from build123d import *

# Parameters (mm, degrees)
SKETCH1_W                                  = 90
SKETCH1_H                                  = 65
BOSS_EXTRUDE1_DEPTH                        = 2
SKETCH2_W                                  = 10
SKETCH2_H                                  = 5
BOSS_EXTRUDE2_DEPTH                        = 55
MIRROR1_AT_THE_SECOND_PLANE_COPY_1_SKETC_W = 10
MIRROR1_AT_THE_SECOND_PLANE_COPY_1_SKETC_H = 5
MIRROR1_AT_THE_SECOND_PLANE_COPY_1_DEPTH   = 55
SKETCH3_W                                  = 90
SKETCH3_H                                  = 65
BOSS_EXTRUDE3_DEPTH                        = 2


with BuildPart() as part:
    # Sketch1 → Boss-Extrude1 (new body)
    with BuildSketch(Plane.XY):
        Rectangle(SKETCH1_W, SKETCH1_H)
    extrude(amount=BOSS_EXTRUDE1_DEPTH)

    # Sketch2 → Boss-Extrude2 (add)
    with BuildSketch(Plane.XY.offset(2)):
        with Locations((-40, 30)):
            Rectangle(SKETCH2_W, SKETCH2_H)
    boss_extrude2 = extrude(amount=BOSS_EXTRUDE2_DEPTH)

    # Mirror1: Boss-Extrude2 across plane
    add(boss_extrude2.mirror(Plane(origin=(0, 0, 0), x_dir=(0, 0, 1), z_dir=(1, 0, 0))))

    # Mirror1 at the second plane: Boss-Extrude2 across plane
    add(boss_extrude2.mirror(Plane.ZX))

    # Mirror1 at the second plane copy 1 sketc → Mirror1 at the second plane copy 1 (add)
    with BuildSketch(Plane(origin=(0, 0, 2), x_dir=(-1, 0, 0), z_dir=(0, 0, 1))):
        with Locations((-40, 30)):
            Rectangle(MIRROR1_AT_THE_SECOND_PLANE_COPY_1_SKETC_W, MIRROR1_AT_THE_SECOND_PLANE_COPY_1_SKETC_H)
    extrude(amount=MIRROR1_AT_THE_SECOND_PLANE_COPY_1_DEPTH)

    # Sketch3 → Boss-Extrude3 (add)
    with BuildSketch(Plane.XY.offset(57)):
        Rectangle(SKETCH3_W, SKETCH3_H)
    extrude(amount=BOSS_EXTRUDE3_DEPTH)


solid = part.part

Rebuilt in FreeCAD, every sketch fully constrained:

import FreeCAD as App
import Part
import Sketcher
from FreeCAD import Vector

doc = App.newDocument("Part")
body = doc.addObject("PartDesign::Body", "Body")

sketch1 = body.newObject("Sketcher::SketchObject", "Sketch")
sketch1.AttachmentSupport = (doc.getObject("XY_Plane"), [""])
sketch1.MapMode = "FlatFace"
sketch1.addGeometry([
    Part.LineSegment(Vector(-45, 32, 0), Vector(-45, -32, 0)),
    Part.LineSegment(Vector(-45, -32, 0), Vector(45, -32, 0)),
    Part.LineSegment(Vector(45, -32, 0), Vector(45, 32, 0)),
    Part.LineSegment(Vector(45, 32, 0), Vector(-45, 32, 0)),
], False)
sketch1.addConstraint([
    Sketcher.Constraint("Coincident", 0, 2, 1, 1),
    Sketcher.Constraint("Coincident", 1, 2, 2, 1),
    Sketcher.Constraint("Coincident", 2, 2, 3, 1),
    Sketcher.Constraint("Coincident", 3, 2, 0, 1),
    Sketcher.Constraint("Vertical", 0),
    Sketcher.Constraint("Horizontal", 1),
    Sketcher.Constraint("Vertical", 2),
    Sketcher.Constraint("Horizontal", 3),
    Sketcher.Constraint("Symmetric", 0, 2, 2, 2, -1, 1),
    Sketcher.Constraint("DistanceX", 1, 1, 1, 2, 90.0),
    Sketcher.Constraint("DistanceY", 0, 2, 0, 1, 65.0),
])
pad1 = body.newObject("PartDesign::Pad", "Pad")
pad1.Profile = sketch1
pad1.Length = 2

sketch2 = body.newObject("Sketcher::SketchObject", "Sketch001")
sketch2.AttachmentSupport = (doc.getObject("XY_Plane"), [""])
sketch2.MapMode = "FlatFace"
sketch2.AttachmentOffset = App.Placement(Vector(0, 0, 2), App.Rotation())
sketch2.addGeometry([
    Part.LineSegment(Vector(-45, 32, 0), Vector(-45, 28, 0)),
    Part.LineSegment(Vector(-45, 28, 0), Vector(-35, 28, 0)),
    Part.LineSegment(Vector(-35, 28, 0), Vector(-35, 32, 0)),
    Part.LineSegment(Vector(-35, 32, 0), Vector(-45, 32, 0)),
], False)
sketch2.addConstraint([
    Sketcher.Constraint("Coincident", 0, 2, 1, 1),
    Sketcher.Constraint("Coincident", 1, 2, 2, 1),
    Sketcher.Constraint("Coincident", 2, 2, 3, 1),
    Sketcher.Constraint("Coincident", 3, 2, 0, 1),
    Sketcher.Constraint("Vertical", 0),
    Sketcher.Constraint("Horizontal", 1),
    Sketcher.Constraint("Vertical", 2),
    Sketcher.Constraint("Horizontal", 3),
    Sketcher.Constraint("DistanceX", 1, 1, 1, 2, 10.0),
    Sketcher.Constraint("DistanceY", 0, 2, 0, 1, 5.0),
    Sketcher.Constraint("DistanceX", 0, 2, -1, 1, 45.0),
    Sketcher.Constraint("DistanceY", -1, 1, 0, 2, 27.5),
])
pad2 = body.newObject("PartDesign::Pad", "Pad001")
pad2.Profile = sketch2
pad2.Length = 55
doc.recompute()

mirrored = body.newObject("PartDesign::Mirrored", "Mirrored")
mirrored.Originals = [pad2]
mirrored.MirrorPlane = (doc.getObject("YZ_Plane"), [""])
body.Tip = mirrored
doc.recompute()

mirrored2 = body.newObject("PartDesign::Mirrored", "Mirrored001")
mirrored2.Originals = [pad2]
mirrored2.MirrorPlane = (doc.getObject("XZ_Plane"), [""])
body.Tip = mirrored2

sketch3 = body.newObject("Sketcher::SketchObject", "Sketch002")
sketch3.AttachmentSupport = (doc.getObject("XY_Plane"), [""])
sketch3.MapMode = "FlatFace"
sketch3.AttachmentOffset = App.Placement(Vector(0, 0, 2), App.Rotation())
sketch3.addGeometry([
    Part.LineSegment(Vector(45, -32, 0), Vector(45, -28, 0)),
    Part.LineSegment(Vector(45, -28, 0), Vector(35, -28, 0)),
    Part.LineSegment(Vector(35, -28, 0), Vector(35, -32, 0)),
    Part.LineSegment(Vector(35, -32, 0), Vector(45, -32, 0)),
], False)
sketch3.addConstraint([
    Sketcher.Constraint("Coincident", 0, 2, 1, 1),
    Sketcher.Constraint("Coincident", 1, 2, 2, 1),
    Sketcher.Constraint("Coincident", 2, 2, 3, 1),
    Sketcher.Constraint("Coincident", 3, 2, 0, 1),
    Sketcher.Constraint("Vertical", 0),
    Sketcher.Constraint("Horizontal", 1),
    Sketcher.Constraint("Vertical", 2),
    Sketcher.Constraint("Horizontal", 3),
    Sketcher.Constraint("DistanceX", 1, 2, 1, 1, 10.0),
    Sketcher.Constraint("DistanceY", 0, 1, 0, 2, 5.0),
    Sketcher.Constraint("DistanceX", -1, 1, 0, 2, 45.0),
    Sketcher.Constraint("DistanceY", 0, 2, -1, 1, 27.5),
])
pad3 = body.newObject("PartDesign::Pad", "Pad002")
pad3.Profile = sketch3
pad3.Length = 55

sketch4 = body.newObject("Sketcher::SketchObject", "Sketch003")
sketch4.AttachmentSupport = (doc.getObject("XY_Plane"), [""])
sketch4.MapMode = "FlatFace"
sketch4.AttachmentOffset = App.Placement(Vector(0, 0, 57), App.Rotation())
sketch4.addGeometry([
    Part.LineSegment(Vector(-45, 32, 0), Vector(-45, -32, 0)),
    Part.LineSegment(Vector(-45, -32, 0), Vector(45, -32, 0)),
    Part.LineSegment(Vector(45, -32, 0), Vector(45, 32, 0)),
    Part.LineSegment(Vector(45, 32, 0), Vector(-45, 32, 0)),
], False)
sketch4.addConstraint([
    Sketcher.Constraint("Coincident", 0, 2, 1, 1),
    Sketcher.Constraint("Coincident", 1, 2, 2, 1),
    Sketcher.Constraint("Coincident", 2, 2, 3, 1),
    Sketcher.Constraint("Coincident", 3, 2, 0, 1),
    Sketcher.Constraint("Vertical", 0),
    Sketcher.Constraint("Horizontal", 1),
    Sketcher.Constraint("Vertical", 2),
    Sketcher.Constraint("Horizontal", 3),
    Sketcher.Constraint("Symmetric", 0, 2, 2, 2, -1, 1),
    Sketcher.Constraint("DistanceX", 1, 1, 1, 2, 90.0),
    Sketcher.Constraint("DistanceY", 0, 2, 0, 1, 65.0),
])
pad4 = body.newObject("PartDesign::Pad", "Pad003")
pad4.Profile = sketch4
pad4.Length = 2

doc.recompute()
